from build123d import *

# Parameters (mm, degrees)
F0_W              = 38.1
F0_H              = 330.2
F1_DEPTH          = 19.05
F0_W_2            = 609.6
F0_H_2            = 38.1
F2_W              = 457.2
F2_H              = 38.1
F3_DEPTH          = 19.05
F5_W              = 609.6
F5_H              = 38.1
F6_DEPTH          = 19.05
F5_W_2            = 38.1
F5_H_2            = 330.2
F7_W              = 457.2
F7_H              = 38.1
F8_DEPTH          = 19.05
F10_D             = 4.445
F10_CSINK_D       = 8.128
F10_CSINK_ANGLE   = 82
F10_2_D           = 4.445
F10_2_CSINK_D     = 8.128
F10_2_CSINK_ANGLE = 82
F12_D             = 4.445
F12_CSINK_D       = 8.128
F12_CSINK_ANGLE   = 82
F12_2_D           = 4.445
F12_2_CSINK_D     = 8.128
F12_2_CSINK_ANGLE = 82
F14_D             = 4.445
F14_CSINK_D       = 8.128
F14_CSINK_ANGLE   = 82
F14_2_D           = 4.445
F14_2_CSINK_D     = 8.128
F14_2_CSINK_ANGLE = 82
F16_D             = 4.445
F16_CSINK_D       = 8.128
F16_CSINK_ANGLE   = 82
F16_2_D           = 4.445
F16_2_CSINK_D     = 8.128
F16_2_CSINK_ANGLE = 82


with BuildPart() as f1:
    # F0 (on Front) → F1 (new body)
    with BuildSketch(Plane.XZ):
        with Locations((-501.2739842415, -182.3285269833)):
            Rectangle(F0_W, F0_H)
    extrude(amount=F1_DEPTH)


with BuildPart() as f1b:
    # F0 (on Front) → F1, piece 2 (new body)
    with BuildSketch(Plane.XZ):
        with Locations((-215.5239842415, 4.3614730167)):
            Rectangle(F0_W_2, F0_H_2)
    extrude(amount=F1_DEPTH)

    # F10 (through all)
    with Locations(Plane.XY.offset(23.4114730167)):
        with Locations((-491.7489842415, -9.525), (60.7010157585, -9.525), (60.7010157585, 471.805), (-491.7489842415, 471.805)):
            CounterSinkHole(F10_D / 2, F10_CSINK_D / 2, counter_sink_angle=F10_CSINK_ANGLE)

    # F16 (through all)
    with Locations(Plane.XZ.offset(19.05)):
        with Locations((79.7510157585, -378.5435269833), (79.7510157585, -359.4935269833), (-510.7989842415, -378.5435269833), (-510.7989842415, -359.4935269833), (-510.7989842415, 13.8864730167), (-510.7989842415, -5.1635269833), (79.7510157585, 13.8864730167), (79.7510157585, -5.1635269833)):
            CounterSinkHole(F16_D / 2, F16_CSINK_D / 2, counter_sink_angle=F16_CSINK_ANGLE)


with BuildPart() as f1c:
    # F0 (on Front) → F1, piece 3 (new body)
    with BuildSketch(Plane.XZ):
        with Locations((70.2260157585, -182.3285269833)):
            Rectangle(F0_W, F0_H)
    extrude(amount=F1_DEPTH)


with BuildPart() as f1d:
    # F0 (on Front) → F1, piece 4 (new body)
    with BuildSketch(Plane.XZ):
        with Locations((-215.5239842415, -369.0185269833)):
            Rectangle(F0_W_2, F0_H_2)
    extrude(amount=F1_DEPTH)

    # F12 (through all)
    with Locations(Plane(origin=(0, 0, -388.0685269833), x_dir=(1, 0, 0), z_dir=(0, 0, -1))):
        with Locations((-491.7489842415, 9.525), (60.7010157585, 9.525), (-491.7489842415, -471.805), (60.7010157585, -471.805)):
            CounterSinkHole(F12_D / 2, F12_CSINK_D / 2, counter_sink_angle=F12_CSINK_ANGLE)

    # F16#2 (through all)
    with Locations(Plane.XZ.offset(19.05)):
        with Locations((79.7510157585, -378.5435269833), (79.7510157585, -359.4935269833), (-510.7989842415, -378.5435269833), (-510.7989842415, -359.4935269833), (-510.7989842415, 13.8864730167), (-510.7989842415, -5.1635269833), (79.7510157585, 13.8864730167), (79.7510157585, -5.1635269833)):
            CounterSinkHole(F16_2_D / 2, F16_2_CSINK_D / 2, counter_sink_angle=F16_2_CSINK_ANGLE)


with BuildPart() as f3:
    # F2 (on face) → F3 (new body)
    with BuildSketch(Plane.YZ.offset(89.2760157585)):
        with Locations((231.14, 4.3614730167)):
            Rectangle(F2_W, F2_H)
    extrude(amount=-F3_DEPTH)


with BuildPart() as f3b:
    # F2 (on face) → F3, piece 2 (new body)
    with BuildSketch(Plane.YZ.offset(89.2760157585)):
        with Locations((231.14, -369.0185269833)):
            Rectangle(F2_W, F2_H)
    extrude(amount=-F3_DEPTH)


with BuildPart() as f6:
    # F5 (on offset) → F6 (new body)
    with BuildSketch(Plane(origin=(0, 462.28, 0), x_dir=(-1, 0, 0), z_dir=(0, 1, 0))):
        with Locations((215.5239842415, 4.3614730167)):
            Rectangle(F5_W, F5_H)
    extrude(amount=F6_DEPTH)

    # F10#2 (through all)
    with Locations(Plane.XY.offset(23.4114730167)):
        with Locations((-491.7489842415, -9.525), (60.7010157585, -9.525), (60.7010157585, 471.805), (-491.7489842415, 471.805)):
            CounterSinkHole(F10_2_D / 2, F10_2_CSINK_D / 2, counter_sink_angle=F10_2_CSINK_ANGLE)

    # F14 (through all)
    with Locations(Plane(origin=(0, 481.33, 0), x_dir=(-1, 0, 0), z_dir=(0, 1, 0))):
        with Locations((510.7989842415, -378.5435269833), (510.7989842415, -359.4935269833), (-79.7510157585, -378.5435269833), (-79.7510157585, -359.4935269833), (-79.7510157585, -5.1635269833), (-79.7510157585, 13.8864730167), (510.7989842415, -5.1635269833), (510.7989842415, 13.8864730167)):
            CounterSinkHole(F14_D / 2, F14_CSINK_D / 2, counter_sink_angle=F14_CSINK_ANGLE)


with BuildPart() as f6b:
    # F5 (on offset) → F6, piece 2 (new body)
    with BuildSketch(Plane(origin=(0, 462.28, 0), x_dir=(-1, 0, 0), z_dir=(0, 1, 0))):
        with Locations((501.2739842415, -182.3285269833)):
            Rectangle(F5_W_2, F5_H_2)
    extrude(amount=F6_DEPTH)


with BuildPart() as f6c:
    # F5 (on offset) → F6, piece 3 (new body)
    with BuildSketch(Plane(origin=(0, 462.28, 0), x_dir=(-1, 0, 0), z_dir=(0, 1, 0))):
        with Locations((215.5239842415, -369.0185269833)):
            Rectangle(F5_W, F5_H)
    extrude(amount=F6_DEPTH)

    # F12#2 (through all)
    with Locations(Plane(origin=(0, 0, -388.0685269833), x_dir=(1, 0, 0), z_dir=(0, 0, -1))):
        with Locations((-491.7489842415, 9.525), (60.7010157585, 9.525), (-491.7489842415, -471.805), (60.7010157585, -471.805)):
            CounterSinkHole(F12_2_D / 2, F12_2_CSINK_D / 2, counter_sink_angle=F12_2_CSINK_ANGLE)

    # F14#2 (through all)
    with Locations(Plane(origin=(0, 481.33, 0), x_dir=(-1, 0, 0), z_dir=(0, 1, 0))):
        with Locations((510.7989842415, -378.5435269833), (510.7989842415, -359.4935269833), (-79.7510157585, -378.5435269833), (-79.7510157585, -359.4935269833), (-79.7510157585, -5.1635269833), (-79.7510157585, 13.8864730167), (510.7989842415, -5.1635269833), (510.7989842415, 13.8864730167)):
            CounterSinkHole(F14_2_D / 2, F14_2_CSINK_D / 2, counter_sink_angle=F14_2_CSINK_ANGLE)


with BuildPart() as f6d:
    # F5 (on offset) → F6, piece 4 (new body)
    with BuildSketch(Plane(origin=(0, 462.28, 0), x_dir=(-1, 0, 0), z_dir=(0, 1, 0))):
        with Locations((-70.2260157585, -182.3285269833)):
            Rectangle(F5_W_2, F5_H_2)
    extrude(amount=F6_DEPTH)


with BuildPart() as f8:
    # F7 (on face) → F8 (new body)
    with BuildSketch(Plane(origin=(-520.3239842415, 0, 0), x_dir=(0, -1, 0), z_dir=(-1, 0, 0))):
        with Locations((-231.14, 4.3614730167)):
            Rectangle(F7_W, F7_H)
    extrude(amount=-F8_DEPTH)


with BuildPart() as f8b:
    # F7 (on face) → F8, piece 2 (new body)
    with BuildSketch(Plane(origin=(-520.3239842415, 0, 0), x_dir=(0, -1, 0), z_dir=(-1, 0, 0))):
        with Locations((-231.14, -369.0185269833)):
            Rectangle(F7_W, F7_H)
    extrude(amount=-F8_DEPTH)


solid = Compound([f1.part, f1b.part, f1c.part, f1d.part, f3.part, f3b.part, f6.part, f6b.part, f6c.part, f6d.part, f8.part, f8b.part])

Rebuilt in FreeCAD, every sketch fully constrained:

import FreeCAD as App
import Part
import Sketcher

V = App.Vector
Q = App.Units.Quantity

doc = App.newDocument("Part")
body = doc.addObject("PartDesign::Body", "Body")

# Sketch on XZ plane
sketch1 = body.newObject("Sketcher::SketchObject", "Sketch")
sketch1.AttachmentSupport = (doc.getObject("XZ_Plane"), [""])
sketch1.MapMode = "FlatFace"
sketch1.addGeometry(Part.LineSegment(V(-520.323984, -17.228527, 0), V(-520.323984, -347.428527, 0)), False)
sketch1.addGeometry(Part.LineSegment(V(-520.323984, -347.428527, 0), V(-482.223984, -347.428527, 0)), False)
sketch1.addGeometry(Part.LineSegment(V(-482.223984, -347.428527, 0), V(-482.223984, -17.228527, 0)), False)
sketch1.addGeometry(Part.LineSegment(V(-482.223984, -17.228527, 0), V(-520.323984, -17.228527, 0)), False)
sketch1.addConstraint(Sketcher.Constraint("Coincident", 0, 2, 1, 1))
sketch1.addConstraint(Sketcher.Constraint("Coincident", 1, 2, 2, 1))
sketch1.addConstraint(Sketcher.Constraint("Coincident", 2, 2, 3, 1))
sketch1.addConstraint(Sketcher.Constraint("Coincident", 3, 2, 0, 1))
sketch1.addConstraint(Sketcher.Constraint("Vertical", 0))
sketch1.addConstraint(Sketcher.Constraint("Horizontal", 1))
sketch1.addConstraint(Sketcher.Constraint("Vertical", 2))
sketch1.addConstraint(Sketcher.Constraint("Horizontal", 3))
sketch1.addConstraint(Sketcher.Constraint("DistanceY", 0, 2, 0, 1, Q("13 in")))
sketch1.addConstraint(Sketcher.Constraint("DistanceX", 1, 1, 1, 2, Q("1.5 in")))
sketch1.addConstraint(Sketcher.Constraint("DistanceX", 0, 2, -1, 1, Q("520.323984 mm")))
sketch1.addConstraint(Sketcher.Constraint("DistanceY", 0, 2, -1, 1, Q("347.428527 mm")))
pad1 = body.newObject("PartDesign::Pad", "Pad")
pad1.Profile = sketch1
pad1.Length = Q("0.75 in")
body2 = doc.addObject("PartDesign::Body", "Body001")

# Sketch on XZ plane
sketch2 = body2.newObject("Sketcher::SketchObject", "Sketch001")
sketch2.AttachmentSupport = (doc.getObject("XZ_Plane001"), [""])
sketch2.MapMode = "FlatFace"
sketch2.addGeometry(Part.LineSegment(V(-520.323984, 23.411473, 0), V(-520.323984, -14.688527, 0)), False)
sketch2.addGeometry(Part.LineSegment(V(-520.323984, -14.688527, 0), V(89.276016, -14.688527, 0)), False)
sketch2.addGeometry(Part.LineSegment(V(89.276016, -14.688527, 0), V(89.276016, 23.411473, 0)), False)
sketch2.addGeometry(Part.LineSegment(V(89.276016, 23.411473, 0), V(-520.323984, 23.411473, 0)), False)
sketch2.addConstraint(Sketcher.Constraint("Coincident", 0, 2, 1, 1))
sketch2.addConstraint(Sketcher.Constraint("Coincident", 1, 2, 2, 1))
sketch2.addConstraint(Sketcher.Constraint("Coincident", 2, 2, 3, 1))
sketch2.addConstraint(Sketcher.Constraint("Coincident", 3, 2, 0, 1))
sketch2.addConstraint(Sketcher.Constraint("Vertical", 0))
sketch2.addConstraint(Sketcher.Constraint("Horizontal", 1))
sketch2.addConstraint(Sketcher.Constraint("Vertical", 2))
sketch2.addConstraint(Sketcher.Constraint("Horizontal", 3))
sketch2.addConstraint(Sketcher.Constraint("DistanceX", 1, 1, 1, 2, Q("24 in")))
sketch2.addConstraint(Sketcher.Constraint("DistanceY", 0, 2, 0, 1, Q("1.5 in")))
sketch2.addConstraint(Sketcher.Constraint("DistanceX", 0, 2, -1, 1, Q("520.323984 mm")))
sketch2.addConstraint(Sketcher.Constraint("DistanceY", 0, 2, -1, 1, Q("14.688527 mm")))
pad2 = body2.newObject("PartDesign::Pad", "Pad001")
pad2.Profile = sketch2
pad2.Length = Q("0.75 in")

# Sketch on XY plane
sketch3 = body2.newObject("Sketcher::SketchObject", "Sketch002")
sketch3.AttachmentSupport = (doc.getObject("XY_Plane001"), [""])
sketch3.MapMode = "FlatFace"
sketch3.AttachmentOffset = App.Placement(V(0, 0, 23.411473), App.Rotation())
sketch3.addGeometry(Part.Circle(V(-491.748984, -9.525, 0), V(0, 0, 1), 2.2225), False)
sketch3.addGeometry(Part.Circle(V(60.701016, -9.525, 0), V(0, 0, 1), 2.2225), False)
sketch3.addGeometry(Part.Circle(V(60.701016, 471.805, 0), V(0, 0, 1), 2.2225), False)
sketch3.addGeometry(Part.Circle(V(-491.748984, 471.805, 0), V(0, 0, 1), 2.2225), False)
sketch3.addConstraint(Sketcher.Constraint("Equal", 0, 1))
sketch3.addConstraint(Sketcher.Constraint("Equal", 1, 2))
sketch3.addConstraint(Sketcher.Constraint("Equal", 2, 3))
sketch3.addConstraint(Sketcher.Constraint("Horizontal", 0, 3, 1, 3))
sketch3.addConstraint(Sketcher.Constraint("Horizontal", 2, 3, 3, 3))
sketch3.addConstraint(Sketcher.Constraint("Vertical", 1, 3, 2, 3))
sketch3.addConstraint(Sketcher.Constraint("Vertical", 0, 3, 3, 3))
sketch3.addConstraint(Sketcher.Constraint("Diameter", 0, Q("0.175 in")))
sketch3.addConstraint(Sketcher.Constraint("DistanceX", 0, 3, 1, 3, Q("21.75 in")))
sketch3.addConstraint(Sketcher.Constraint("DistanceY", 1, 3, 2, 3, Q("18.95 in")))
sketch3.addConstraint(Sketcher.Constraint("DistanceY", 0, 3, -1, 1, Q("0.375 in")))
sketch3.addConstraint(Sketcher.Constraint("DistanceX", 0, 3, -1, 1, Q("491.748984 mm")))
doc.recompute()
hole = body2.newObject("PartDesign::Hole", "Hole")
hole.Profile = sketch3
hole.ThreadType = "None"
hole.Diameter = Q("0.175 in")
hole.DepthType = "ThroughAll"
hole.HoleCutType = "Countersink"
hole.HoleCutDiameter = Q("0.32 in")
hole.HoleCutCountersinkAngle = 82

# Sketch on XZ plane
sketch4 = body2.newObject("Sketcher::SketchObject", "Sketch003")
sketch4.AttachmentSupport = (doc.getObject("XZ_Plane001"), [""])
sketch4.MapMode = "FlatFace"
sketch4.AttachmentOffset = App.Placement(V(0, 0, 0.75 * 25.4), App.Rotation())
sketch4.addGeometry(Part.Circle(V(79.751016, -378.543527, 0), V(0, 0, 1), 2.2225), False)
sketch4.addGeometry(Part.Circle(V(79.751016, -359.493527, 0), V(0, 0, 1), 2.2225), False)
sketch4.addGeometry(Part.Circle(V(-510.798984, -378.543527, 0), V(0, 0, 1), 2.2225), False)
sketch4.addGeometry(Part.Circle(V(-510.798984, -359.493527, 0), V(0, 0, 1), 2.2225), False)
sketch4.addGeometry(Part.Circle(V(-510.798984, 13.886473, 0), V(0, 0, 1), 2.2225), False)
sketch4.addGeometry(Part.Circle(V(-510.798984, -5.163527, 0), V(0, 0, 1), 2.2225), False)
sketch4.addGeometry(Part.Circle(V(79.751016, 13.886473, 0), V(0, 0, 1), 2.2225), False)
sketch4.addGeometry(Part.Circle(V(79.751016, -5.163527, 0), V(0, 0, 1), 2.2225), False)
sketch4.addConstraint(Sketcher.Constraint("Equal", 0, 1))
sketch4.addConstraint(Sketcher.Constraint("Equal", 1, 2))
sketch4.addConstraint(Sketcher.Constraint("Equal", 2, 3))
sketch4.addConstraint(Sketcher.Constraint("Equal", 3, 4))
sketch4.addConstraint(Sketcher.Constraint("Equal", 4, 5))
sketch4.addConstraint(Sketcher.Constraint("Equal", 5, 6))
sketch4.addConstraint(Sketcher.Constraint("Equal", 6, 7))
sketch4.addConstraint(Sketcher.Constraint("Horizontal", 0, 3, 2, 3))
sketch4.addConstraint(Sketcher.Constraint("Horizontal", 1, 3, 3, 3))
sketch4.addConstraint(Sketcher.Constraint("Horizontal", 4, 3, 6, 3))
sketch4.addConstraint(Sketcher.Constraint("Horizontal", 5, 3, 7, 3))
sketch4.addConstraint(Sketcher.Constraint("Vertical", 0, 3, 1, 3))
sketch4.addConstraint(Sketcher.Constraint("Vertical", 2, 3, 3, 3))
sketch4.addConstraint(Sketcher.Constraint("Vertical", 3, 3, 4, 3))
sketch4.addConstraint(Sketcher.Constraint("Vertical", 4, 3, 5, 3))
sketch4.addConstraint(Sketcher.Constraint("Vertical", 1, 3, 6, 3))
sketch4.addConstraint(Sketcher.Constraint("Vertical", 6, 3, 7, 3))
sketch4.addConstraint(Sketcher.Constraint("Diameter", 0, Q("0.175 in")))
sketch4.addConstraint(Sketcher.Constraint("DistanceY", 3, 3, 4, 3, Q("14.7 in")))
sketch4.addConstraint(Sketcher.Constraint("DistanceY", 2, 3, 5, 3, Q("14.7 in")))
sketch4.addConstraint(Sketcher.Constraint("DistanceY", 0, 3, 1, 3, Q("0.75 in")))
sketch4.addConstraint(Sketcher.Constraint("DistanceX", 2, 3, 0, 3, Q("23.25 in")))
sketch4.addConstraint(Sketcher.Constraint("DistanceX", -1, 1, 0, 3, Q("79.751016 mm")))
sketch4.addConstraint(Sketcher.Constraint("DistanceY", 0, 3, -1, 1, Q("378.543527 mm")))
doc.recompute()
hole2 = body2.newObject("PartDesign::Hole", "Hole001")
hole2.Profile = sketch4
hole2.ThreadType = "None"
hole2.Diameter = Q("0.175 in")
hole2.DepthType = "ThroughAll"
hole2.HoleCutType = "Countersink"
hole2.HoleCutDiameter = Q("0.32 in")
hole2.HoleCutCountersinkAngle = 82
body3 = doc.addObject("PartDesign::Body", "Body002")

# Sketch on XZ plane
sketch5 = body3.newObject("Sketcher::SketchObject", "Sketch004")
sketch5.AttachmentSupport = (doc.getObject("XZ_Plane002"), [""])
sketch5.MapMode = "FlatFace"
sketch5.addGeometry(Part.LineSegment(V(51.176016, -17.228527, 0), V(51.176016, -347.428527, 0)), False)
sketch5.addGeometry(Part.LineSegment(V(51.176016, -347.428527, 0), V(89.276016, -347.428527, 0)), False)
sketch5.addGeometry(Part.LineSegment(V(89.276016, -347.428527, 0), V(89.276016, -17.228527, 0)), False)
sketch5.addGeometry(Part.LineSegment(V(89.276016, -17.228527, 0), V(51.176016, -17.228527, 0)), False)
sketch5.addConstraint(Sketcher.Constraint("Coincident", 0, 2, 1, 1))
sketch5.addConstraint(Sketcher.Constraint("Coincident", 1, 2, 2, 1))
sketch5.addConstraint(Sketcher.Constraint("Coincident", 2, 2, 3, 1))
sketch5.addConstraint(Sketcher.Constraint("Coincident", 3, 2, 0, 1))
sketch5.addConstraint(Sketcher.Constraint("Vertical", 0))
sketch5.addConstraint(Sketcher.Constraint("Horizontal", 1))
sketch5.addConstraint(Sketcher.Constraint("Vertical", 2))
sketch5.addConstraint(Sketcher.Constraint("Horizontal", 3))
sketch5.addConstraint(Sketcher.Constraint("DistanceY", 0, 2, 0, 1, Q("13 in")))
sketch5.addConstraint(Sketcher.Constraint("DistanceX", 1, 1, 1, 2, Q("1.5 in")))
sketch5.addConstraint(Sketcher.Constraint("DistanceX", -1, 1, 0, 2, Q("51.176016 mm")))
sketch5.addConstraint(Sketcher.Constraint("DistanceY", 0, 2, -1, 1, Q("347.428527 mm")))
pad3 = body3.newObject("PartDesign::Pad", "Pad002")
pad3.Profile = sketch5
pad3.Length = Q("0.75 in")
body4 = doc.addObject("PartDesign::Body", "Body003")

# Sketch on XZ plane
sketch6 = body4.newObject("Sketcher::SketchObject", "Sketch005")
sketch6.AttachmentSupport = (doc.getObject("XZ_Plane003"), [""])
sketch6.MapMode = "FlatFace"
sketch6.addGeometry(Part.LineSegment(V(-520.323984, -349.968527, 0), V(-520.323984, -388.068527, 0)), False)
sketch6.addGeometry(Part.LineSegment(V(-520.323984, -388.068527, 0), V(89.276016, -388.068527, 0)), False)
sketch6.addGeometry(Part.LineSegment(V(89.276016, -388.068527, 0), V(89.276016, -349.968527, 0)), False)
sketch6.addGeometry(Part.LineSegment(V(89.276016, -349.968527, 0), V(-520.323984, -349.968527, 0)), False)
sketch6.addConstraint(Sketcher.Constraint("Coincident", 0, 2, 1, 1))
sketch6.addConstraint(Sketcher.Constraint("Coincident", 1, 2, 2, 1))
sketch6.addConstraint(Sketcher.Constraint("Coincident", 2, 2, 3, 1))
sketch6.addConstraint(Sketcher.Constraint("Coincident", 3, 2, 0, 1))
sketch6.addConstraint(Sketcher.Constraint("Vertical", 0))
sketch6.addConstraint(Sketcher.Constraint("Horizontal", 1))
sketch6.addConstraint(Sketcher.Constraint("Vertical", 2))
sketch6.addConstraint(Sketcher.Constraint("Horizontal", 3))
sketch6.addConstraint(Sketcher.Constraint("DistanceX", 1, 1, 1, 2, Q("24 in")))
sketch6.addConstraint(Sketcher.Constraint("DistanceY", 0, 2, 0, 1, Q("1.5 in")))
sketch6.addConstraint(Sketcher.Constraint("DistanceX", 0, 2, -1, 1, Q("520.323984 mm")))
sketch6.addConstraint(Sketcher.Constraint("DistanceY", 0, 2, -1, 1, Q("388.068527 mm")))
pad4 = body4.newObject("PartDesign::Pad", "Pad003")
pad4.Profile = sketch6
pad4.Length = Q("0.75 in")

# Sketch on XY plane
sketch7 = body4.newObject("Sketcher::SketchObject", "Sketch006")
sketch7.AttachmentSupport = (doc.getObject("XY_Plane003"), [""])
sketch7.MapMode = "FlatFace"
sketch7.AttachmentOffset = App.Placement(V(0, 0, -388.068527), App.Rotation())
sketch7.addGeometry(Part.Circle(V(-491.748984, -9.525, 0), V(0, 0, 1), 2.2225), False)
sketch7.addGeometry(Part.Circle(V(60.701016, -9.525, 0), V(0, 0, 1), 2.2225), False)
sketch7.addGeometry(Part.Circle(V(-491.748984, 471.805, 0), V(0, 0, 1), 2.2225), False)
sketch7.addGeometry(Part.Circle(V(60.701016, 471.805, 0), V(0, 0, 1), 2.2225), False)
sketch7.addConstraint(Sketcher.Constraint("Equal", 0, 1))
sketch7.addConstraint(Sketcher.Constraint("Equal", 1, 2))
sketch7.addConstraint(Sketcher.Constraint("Equal", 2, 3))
sketch7.addConstraint(Sketcher.Constraint("Horizontal", 0, 3, 1, 3))
sketch7.addConstraint(Sketcher.Constraint("Horizontal", 2, 3, 3, 3))
sketch7.addConstraint(Sketcher.Constraint("Vertical", 0, 3, 2, 3))
sketch7.addConstraint(Sketcher.Constraint("Vertical", 1, 3, 3, 3))
sketch7.addConstraint(Sketcher.Constraint("Diameter", 0, Q("0.175 in")))
sketch7.addConstraint(Sketcher.Constraint("DistanceX", 0, 3, 1, 3, Q("21.75 in")))
sketch7.addConstraint(Sketcher.Constraint("DistanceY", 0, 3, 2, 3, Q("18.95 in")))
sketch7.addConstraint(Sketcher.Constraint("DistanceY", 0, 3, -1, 1, Q("0.375 in")))
sketch7.addConstraint(Sketcher.Constraint("DistanceX", 0, 3, -1, 1, Q("491.748984 mm")))
doc.recompute()
hole3 = body4.newObject("PartDesign::Hole", "Hole002")
hole3.Profile = sketch7
hole3.ThreadType = "None"
hole3.Diameter = Q("0.175 in")
hole3.DepthType = "ThroughAll"
hole3.HoleCutType = "Countersink"
hole3.HoleCutDiameter = Q("0.32 in")
hole3.HoleCutCountersinkAngle = 82
hole3.Reversed = True

# Sketch on XZ plane
sketch8 = body4.newObject("Sketcher::SketchObject", "Sketch007")
sketch8.AttachmentSupport = (doc.getObject("XZ_Plane003"), [""])
sketch8.MapMode = "FlatFace"
sketch8.AttachmentOffset = App.Placement(V(0, 0, 0.75 * 25.4), App.Rotation())
sketch8.addGeometry(Part.Circle(V(79.751016, -378.543527, 0), V(0, 0, 1), 2.2225), False)
sketch8.addGeometry(Part.Circle(V(79.751016, -359.493527, 0), V(0, 0, 1), 2.2225), False)
sketch8.addGeometry(Part.Circle(V(-510.798984, -378.543527, 0), V(0, 0, 1), 2.2225), False)
sketch8.addGeometry(Part.Circle(V(-510.798984, -359.493527, 0), V(0, 0, 1), 2.2225), False)
sketch8.addGeometry(Part.Circle(V(-510.798984, 13.886473, 0), V(0, 0, 1), 2.2225), False)
sketch8.addGeometry(Part.Circle(V(-510.798984, -5.163527, 0), V(0, 0, 1), 2.2225), False)
sketch8.addGeometry(Part.Circle(V(79.751016, 13.886473, 0), V(0, 0, 1), 2.2225), False)
sketch8.addGeometry(Part.Circle(V(79.751016, -5.163527, 0), V(0, 0, 1), 2.2225), False)
sketch8.addConstraint(Sketcher.Constraint("Equal", 0, 1))
sketch8.addConstraint(Sketcher.Constraint("Equal", 1, 2))
sketch8.addConstraint(Sketcher.Constraint("Equal", 2, 3))
sketch8.addConstraint(Sketcher.Constraint("Equal", 3, 4))
sketch8.addConstraint(Sketcher.Constraint("Equal", 4, 5))
sketch8.addConstraint(Sketcher.Constraint("Equal", 5, 6))
sketch8.addConstraint(Sketcher.Constraint("Equal", 6, 7))
sketch8.addConstraint(Sketcher.Constraint("Horizontal", 0, 3, 2, 3))
sketch8.addConstraint(Sketcher.Constraint("Horizontal", 1, 3, 3, 3))
sketch8.addConstraint(Sketcher.Constraint("Horizontal", 4, 3, 6, 3))
sketch8.addConstraint(Sketcher.Constraint("Horizontal", 5, 3, 7, 3))
sketch8.addConstraint(Sketcher.Constraint("Vertical", 0, 3, 1, 3))
sketch8.addConstraint(Sketcher.Constraint("Vertical", 2, 3, 3, 3))
sketch8.addConstraint(Sketcher.Constraint("Vertical", 3, 3, 4, 3))
sketch8.addConstraint(Sketcher.Constraint("Vertical", 4, 3, 5, 3))
sketch8.addConstraint(Sketcher.Constraint("Vertical", 1, 3, 6, 3))
sketch8.addConstraint(Sketcher.Constraint("Vertical", 6, 3, 7, 3))
sketch8.addConstraint(Sketcher.Constraint("Diameter", 0, Q("0.175 in")))
sketch8.addConstraint(Sketcher.Constraint("DistanceY", 3, 3, 4, 3, Q("14.7 in")))
sketch8.addConstraint(Sketcher.Constraint("DistanceY", 2, 3, 5, 3, Q("14.7 in")))
sketch8.addConstraint(Sketcher.Constraint("DistanceY", 0, 3, 1, 3, Q("0.75 in")))
sketch8.addConstraint(Sketcher.Constraint("DistanceX", 2, 3, 0, 3, Q("23.25 in")))
sketch8.addConstraint(Sketcher.Constraint("DistanceX", -1, 1, 0, 3, Q("79.751016 mm")))
sketch8.addConstraint(Sketcher.Constraint("DistanceY", 0, 3, -1, 1, Q("378.543527 mm")))
doc.recompute()
hole4 = body4.newObject("PartDesign::Hole", "Hole003")
hole4.Profile = sketch8
hole4.ThreadType = "None"
hole4.Diameter = Q("0.175 in")
hole4.DepthType = "ThroughAll"
hole4.HoleCutType = "Countersink"
hole4.HoleCutDiameter = Q("0.32 in")
hole4.HoleCutCountersinkAngle = 82
body5 = doc.addObject("PartDesign::Body", "Body004")

# Sketch on YZ plane
sketch9 = body5.newObject("Sketcher::SketchObject", "Sketch008")
sketch9.AttachmentSupport = (doc.getObject("YZ_Plane004"), [""])
sketch9.MapMode = "FlatFace"
sketch9.AttachmentOffset = App.Placement(V(0, 0, 89.276016), App.Rotation())
sketch9.addGeometry(Part.LineSegment(V(2.54, 23.411473, 0), V(2.54, -14.688527, 0)), False)
sketch9.addGeometry(Part.LineSegment(V(2.54, -14.688527, 0), V(459.74, -14.688527, 0)), False)
sketch9.addGeometry(Part.LineSegment(V(459.74, -14.688527, 0), V(459.74, 23.411473, 0)), False)
sketch9.addGeometry(Part.LineSegment(V(459.74, 23.411473, 0), V(2.54, 23.411473, 0)), False)
sketch9.addConstraint(Sketcher.Constraint("Coincident", 0, 2, 1, 1))
sketch9.addConstraint(Sketcher.Constraint("Coincident", 1, 2, 2, 1))
sketch9.addConstraint(Sketcher.Constraint("Coincident", 2, 2, 3, 1))
sketch9.addConstraint(Sketcher.Constraint("Coincident", 3, 2, 0, 1))
sketch9.addConstraint(Sketcher.Constraint("Vertical", 0))
sketch9.addConstraint(Sketcher.Constraint("Horizontal", 1))
sketch9.addConstraint(Sketcher.Constraint("Vertical", 2))
sketch9.addConstraint(Sketcher.Constraint("Horizontal", 3))
sketch9.addConstraint(Sketcher.Constraint("DistanceX", 1, 1, 1, 2, Q("18 in")))
sketch9.addConstraint(Sketcher.Constraint("DistanceY", 0, 2, 0, 1, Q("1.5 in")))
sketch9.addConstraint(Sketcher.Constraint("DistanceX", -1, 1, 0, 2, Q("0.1 in")))
sketch9.addConstraint(Sketcher.Constraint("DistanceY", 0, 2, -1, 1, Q("14.688527 mm")))
pad5 = body5.newObject("PartDesign::Pad", "Pad004")
pad5.Profile = sketch9
pad5.Length = Q("0.75 in")
pad5.Reversed = True
body6 = doc.addObject("PartDesign::Body", "Body005")

# Sketch on YZ plane
sketch10 = body6.newObject("Sketcher::SketchObject", "Sketch009")
sketch10.AttachmentSupport = (doc.getObject("YZ_Plane005"), [""])
sketch10.MapMode = "FlatFace"
sketch10.AttachmentOffset = App.Placement(V(0, 0, 89.276016), App.Rotation())
sketch10.addGeometry(Part.LineSegment(V(2.54, -349.968527, 0), V(2.54, -388.068527, 0)), False)
sketch10.addGeometry(Part.LineSegment(V(2.54, -388.068527, 0), V(459.74, -388.068527, 0)), False)
sketch10.addGeometry(Part.LineSegment(V(459.74, -388.068527, 0), V(459.74, -349.968527, 0)), False)
sketch10.addGeometry(Part.LineSegment(V(459.74, -349.968527, 0), V(2.54, -349.968527, 0)), False)
sketch10.addConstraint(Sketcher.Constraint("Coincident", 0, 2, 1, 1))
sketch10.addConstraint(Sketcher.Constraint("Coincident", 1, 2, 2, 1))
sketch10.addConstraint(Sketcher.Constraint("Coincident", 2, 2, 3, 1))
sketch10.addConstraint(Sketcher.Constraint("Coincident", 3, 2, 0, 1))
sketch10.addConstraint(Sketcher.Constraint("Vertical", 0))
sketch10.addConstraint(Sketcher.Constraint("Horizontal", 1))
sketch10.addConstraint(Sketcher.Constraint("Vertical", 2))
sketch10.addConstraint(Sketcher.Constraint("Horizontal", 3))
sketch10.addConstraint(Sketcher.Constraint("DistanceX", 1, 1, 1, 2, Q("18 in")))
sketch10.addConstraint(Sketcher.Constraint("DistanceY", 0, 2, 0, 1, Q("1.5 in")))
sketch10.addConstraint(Sketcher.Constraint("DistanceX", -1, 1, 0, 2, Q("0.1 in")))
sketch10.addConstraint(Sketcher.Constraint("DistanceY", 0, 2, -1, 1, Q("388.068527 mm")))
pad6 = body6.newObject("PartDesign::Pad", "Pad005")
pad6.Profile = sketch10
pad6.Length = Q("0.75 in")
pad6.Reversed = True
body7 = doc.addObject("PartDesign::Body", "Body006")

# Sketch on XZ plane
sketch11 = body7.newObject("Sketcher::SketchObject", "Sketch010")
sketch11.AttachmentSupport = (doc.getObject("XZ_Plane006"), [""])
sketch11.MapMode = "FlatFace"
sketch11.AttachmentOffset = App.Placement(V(0, 0, -18.2 * 25.4), App.Rotation())
sketch11.addGeometry(Part.LineSegment(V(89.276016, 23.411473, 0), V(89.276016, -14.688527, 0)), False)
sketch11.addGeometry(Part.LineSegment(V(89.276016, -14.688527, 0), V(-520.323984, -14.688527, 0)), False)
sketch11.addGeometry(Part.LineSegment(V(-520.323984, -14.688527, 0), V(-520.323984, 23.411473, 0)), False)
sketch11.addGeometry(Part.LineSegment(V(-520.323984, 23.411473, 0), V(89.276016, 23.411473, 0)), False)
sketch11.addConstraint(Sketcher.Constraint("Coincident", 0, 2, 1, 1))
sketch11.addConstraint(Sketcher.Constraint("Coincident", 1, 2, 2, 1))
sketch11.addConstraint(Sketcher.Constraint("Coincident", 2, 2, 3, 1))
sketch11.addConstraint(Sketcher.Constraint("Coincident", 3, 2, 0, 1))
sketch11.addConstraint(Sketcher.Constraint("Vertical", 0))
sketch11.addConstraint(Sketcher.Constraint("Horizontal", 1))
sketch11.addConstraint(Sketcher.Constraint("Vertical", 2))
sketch11.addConstraint(Sketcher.Constraint("Horizontal", 3))
sketch11.addConstraint(Sketcher.Constraint("DistanceX", 1, 2, 1, 1, Q("24 in")))
sketch11.addConstraint(Sketcher.Constraint("DistanceY", 0, 2, 0, 1, Q("1.5 in")))
sketch11.addConstraint(Sketcher.Constraint("DistanceX", -1, 1, 0, 2, Q("89.276016 mm")))
sketch11.addConstraint(Sketcher.Constraint("DistanceY", 0, 2, -1, 1, Q("14.688527 mm")))
pad7 = body7.newObject("PartDesign::Pad", "Pad006")
pad7.Profile = sketch11
pad7.Length = Q("0.75 in")
pad7.Reversed = True

# Sketch on XY plane
sketch12 = body7.newObject("Sketcher::SketchObject", "Sketch011")
sketch12.AttachmentSupport = (doc.getObject("XY_Plane006"), [""])
sketch12.MapMode = "FlatFace"
sketch12.AttachmentOffset = App.Placement(V(0, 0, 23.411473), App.Rotation())
sketch12.addGeometry(Part.Circle(V(-491.748984, -9.525, 0), V(0, 0, 1), 2.2225), False)
sketch12.addGeometry(Part.Circle(V(60.701016, -9.525, 0), V(0, 0, 1), 2.2225), False)
sketch12.addGeometry(Part.Circle(V(60.701016, 471.805, 0), V(0, 0, 1), 2.2225), False)
sketch12.addGeometry(Part.Circle(V(-491.748984, 471.805, 0), V(0, 0, 1), 2.2225), False)
sketch12.addConstraint(Sketcher.Constraint("Equal", 0, 1))
sketch12.addConstraint(Sketcher.Constraint("Equal", 1, 2))
sketch12.addConstraint(Sketcher.Constraint("Equal", 2, 3))
sketch12.addConstraint(Sketcher.Constraint("Horizontal", 0, 3, 1, 3))
sketch12.addConstraint(Sketcher.Constraint("Horizontal", 2, 3, 3, 3))
sketch12.addConstraint(Sketcher.Constraint("Vertical", 1, 3, 2, 3))
sketch12.addConstraint(Sketcher.Constraint("Vertical", 0, 3, 3, 3))
sketch12.addConstraint(Sketcher.Constraint("Diameter", 0, Q("0.175 in")))
sketch12.addConstraint(Sketcher.Constraint("DistanceX", 0, 3, 1, 3, Q("21.75 in")))
sketch12.addConstraint(Sketcher.Constraint("DistanceY", 1, 3, 2, 3, Q("18.95 in")))
sketch12.addConstraint(Sketcher.Constraint("DistanceY", 0, 3, -1, 1, Q("0.375 in")))
sketch12.addConstraint(Sketcher.Constraint("DistanceX", 0, 3, -1, 1, Q("491.748984 mm")))
doc.recompute()
hole5 = body7.newObject("PartDesign::Hole", "Hole004")
hole5.Profile = sketch12
hole5.ThreadType = "None"
hole5.Diameter = Q("0.175 in")
hole5.DepthType = "ThroughAll"
hole5.HoleCutType = "Countersink"
hole5.HoleCutDiameter = Q("0.32 in")
hole5.HoleCutCountersinkAngle = 82

# Sketch on XZ plane
sketch13 = body7.newObject("Sketcher::SketchObject", "Sketch012")
sketch13.AttachmentSupport = (doc.getObject("XZ_Plane006"), [""])
sketch13.MapMode = "FlatFace"
sketch13.AttachmentOffset = App.Placement(V(0, 0, -18.95 * 25.4), App.Rotation())
sketch13.addGeometry(Part.Circle(V(-510.798984, -378.543527, 0), V(0, 0, 1), 2.2225), False)
sketch13.addGeometry(Part.Circle(V(-510.798984, -359.493527, 0), V(0, 0, 1), 2.2225), False)
sketch13.addGeometry(Part.Circle(V(79.751016, -378.543527, 0), V(0, 0, 1), 2.2225), False)
sketch13.addGeometry(Part.Circle(V(79.751016, -359.493527, 0), V(0, 0, 1), 2.2225), False)
sketch13.addGeometry(Part.Circle(V(79.751016, -5.163527, 0), V(0, 0, 1), 2.2225), False)
sketch13.addGeometry(Part.Circle(V(79.751016, 13.886473, 0), V(0, 0, 1), 2.2225), False)
sketch13.addGeometry(Part.Circle(V(-510.798984, -5.163527, 0), V(0, 0, 1), 2.2225), False)
sketch13.addGeometry(Part.Circle(V(-510.798984, 13.886473, 0), V(0, 0, 1), 2.2225), False)
sketch13.addConstraint(Sketcher.Constraint("Equal", 0, 1))
sketch13.addConstraint(Sketcher.Constraint("Equal", 1, 2))
sketch13.addConstraint(Sketcher.Constraint("Equal", 2, 3))
sketch13.addConstraint(Sketcher.Constraint("Equal", 3, 4))
sketch13.addConstraint(Sketcher.Constraint("Equal", 4, 5))
sketch13.addConstraint(Sketcher.Constraint("Equal", 5, 6))
sketch13.addConstraint(Sketcher.Constraint("Equal", 6, 7))
sketch13.addConstraint(Sketcher.Constraint("Horizontal", 0, 3, 2, 3))
sketch13.addConstraint(Sketcher.Constraint("Horizontal", 1, 3, 3, 3))
sketch13.addConstraint(Sketcher.Constraint("Horizontal", 4, 3, 6, 3))
sketch13.addConstraint(Sketcher.Constraint("Horizontal", 5, 3, 7, 3))
sketch13.addConstraint(Sketcher.Constraint("Vertical", 0, 3, 1, 3))
sketch13.addConstraint(Sketcher.Constraint("Vertical", 2, 3, 3, 3))
sketch13.addConstraint(Sketcher.Constraint("Vertical", 3, 3, 4, 3))
sketch13.addConstraint(Sketcher.Constraint("Vertical", 4, 3, 5, 3))
sketch13.addConstraint(Sketcher.Constraint("Vertical", 1, 3, 6, 3))
sketch13.addConstraint(Sketcher.Constraint("Vertical", 6, 3, 7, 3))
sketch13.addConstraint(Sketcher.Constraint("Diameter", 0, Q("0.175 in")))
sketch13.addConstraint(Sketcher.Constraint("DistanceY", 2, 3, 4, 3, Q("14.7 in")))
sketch13.addConstraint(Sketcher.Constraint("DistanceY", 3, 3, 5, 3, Q("14.7 in")))
sketch13.addConstraint(Sketcher.Constraint("DistanceY", 0, 3, 1, 3, Q("0.75 in")))
sketch13.addConstraint(Sketcher.Constraint("DistanceX", 0, 3, 2, 3, Q("23.25 in")))
sketch13.addConstraint(Sketcher.Constraint("DistanceX", 0, 3, -1, 1, Q("510.798984 mm")))
sketch13.addConstraint(Sketcher.Constraint("DistanceY", 0, 3, -1, 1, Q("378.543527 mm")))
doc.recompute()
hole6 = body7.newObject("PartDesign::Hole", "Hole005")
hole6.Profile = sketch13
hole6.ThreadType = "None"
hole6.Diameter = Q("0.175 in")
hole6.DepthType = "ThroughAll"
hole6.HoleCutType = "Countersink"
hole6.HoleCutDiameter = Q("0.32 in")
hole6.HoleCutCountersinkAngle = 82
hole6.Reversed = True
body8 = doc.addObject("PartDesign::Body", "Body007")

# Sketch on XZ plane
sketch14 = body8.newObject("Sketcher::SketchObject", "Sketch013")
sketch14.AttachmentSupport = (doc.getObject("XZ_Plane007"), [""])
sketch14.MapMode = "FlatFace"
sketch14.AttachmentOffset = App.Placement(V(0, 0, -18.2 * 25.4), App.Rotation())
sketch14.addGeometry(Part.LineSegment(V(-482.223984, -17.228527, 0), V(-482.223984, -347.428527, 0)), False)
sketch14.addGeometry(Part.LineSegment(V(-482.223984, -347.428527, 0), V(-520.323984, -347.428527, 0)), False)
sketch14.addGeometry(Part.LineSegment(V(-520.323984, -347.428527, 0), V(-520.323984, -17.228527, 0)), False)
sketch14.addGeometry(Part.LineSegment(V(-520.323984, -17.228527, 0), V(-482.223984, -17.228527, 0)), False)
sketch14.addConstraint(Sketcher.Constraint("Coincident", 0, 2, 1, 1))
sketch14.addConstraint(Sketcher.Constraint("Coincident", 1, 2, 2, 1))
sketch14.addConstraint(Sketcher.Constraint("Coincident", 2, 2, 3, 1))
sketch14.addConstraint(Sketcher.Constraint("Coincident", 3, 2, 0, 1))
sketch14.addConstraint(Sketcher.Constraint("Vertical", 0))
sketch14.addConstraint(Sketcher.Constraint("Horizontal", 1))
sketch14.addConstraint(Sketcher.Constraint("Vertical", 2))
sketch14.addConstraint(Sketcher.Constraint("Horizontal", 3))
sketch14.addConstraint(Sketcher.Constraint("DistanceY", 0, 2, 0, 1, Q("13 in")))
sketch14.addConstraint(Sketcher.Constraint("DistanceX", 1, 2, 1, 1, Q("1.5 in")))
sketch14.addConstraint(Sketcher.Constraint("DistanceX", 0, 2, -1, 1, Q("482.223984 mm")))
sketch14.addConstraint(Sketcher.Constraint("DistanceY", 0, 2, -1, 1, Q("347.428527 mm")))
pad8 = body8.newObject("PartDesign::Pad", "Pad007")
pad8.Profile = sketch14
pad8.Length = Q("0.75 in")
pad8.Reversed = True
body9 = doc.addObject("PartDesign::Body", "Body008")

# Sketch on XZ plane
sketch15 = body9.newObject("Sketcher::SketchObject", "Sketch014")
sketch15.AttachmentSupport = (doc.getObject("XZ_Plane008"), [""])
sketch15.MapMode = "FlatFace"
sketch15.AttachmentOffset = App.Placement(V(0, 0, -18.2 * 25.4), App.Rotation())
sketch15.addGeometry(Part.LineSegment(V(89.276016, -349.968527, 0), V(89.276016, -388.068527, 0)), False)
sketch15.addGeometry(Part.LineSegment(V(89.276016, -388.068527, 0), V(-520.323984, -388.068527, 0)), False)
sketch15.addGeometry(Part.LineSegment(V(-520.323984, -388.068527, 0), V(-520.323984, -349.968527, 0)), False)
sketch15.addGeometry(Part.LineSegment(V(-520.323984, -349.968527, 0), V(89.276016, -349.968527, 0)), False)
sketch15.addConstraint(Sketcher.Constraint("Coincident", 0, 2, 1, 1))
sketch15.addConstraint(Sketcher.Constraint("Coincident", 1, 2, 2, 1))
sketch15.addConstraint(Sketcher.Constraint("Coincident", 2, 2, 3, 1))
sketch15.addConstraint(Sketcher.Constraint("Coincident", 3, 2, 0, 1))
sketch15.addConstraint(Sketcher.Constraint("Vertical", 0))
sketch15.addConstraint(Sketcher.Constraint("Horizontal", 1))
sketch15.addConstraint(Sketcher.Constraint("Vertical", 2))
sketch15.addConstraint(Sketcher.Constraint("Horizontal", 3))
sketch15.addConstraint(Sketcher.Constraint("DistanceX", 1, 2, 1, 1, Q("24 in")))
sketch15.addConstraint(Sketcher.Constraint("DistanceY", 0, 2, 0, 1, Q("1.5 in")))
sketch15.addConstraint(Sketcher.Constraint("DistanceX", -1, 1, 0, 2, Q("89.276016 mm")))
sketch15.addConstraint(Sketcher.Constraint("DistanceY", 0, 2, -1, 1, Q("388.068527 mm")))
pad9 = body9.newObject("PartDesign::Pad", "Pad008")
pad9.Profile = sketch15
pad9.Length = Q("0.75 in")
pad9.Reversed = True

# Sketch on XY plane
sketch16 = body9.newObject("Sketcher::SketchObject", "Sketch015")
sketch16.AttachmentSupport = (doc.getObject("XY_Plane008"), [""])
sketch16.MapMode = "FlatFace"
sketch16.AttachmentOffset = App.Placement(V(0, 0, -388.068527), App.Rotation())
sketch16.addGeometry(Part.Circle(V(-491.748984, -9.525, 0), V(0, 0, 1), 2.2225), False)
sketch16.addGeometry(Part.Circle(V(60.701016, -9.525, 0), V(0, 0, 1), 2.2225), False)
sketch16.addGeometry(Part.Circle(V(-491.748984, 471.805, 0), V(0, 0, 1), 2.2225), False)
sketch16.addGeometry(Part.Circle(V(60.701016, 471.805, 0), V(0, 0, 1), 2.2225), False)
sketch16.addConstraint(Sketcher.Constraint("Equal", 0, 1))
sketch16.addConstraint(Sketcher.Constraint("Equal", 1, 2))
sketch16.addConstraint(Sketcher.Constraint("Equal", 2, 3))
sketch16.addConstraint(Sketcher.Constraint("Horizontal", 0, 3, 1, 3))
sketch16.addConstraint(Sketcher.Constraint("Horizontal", 2, 3, 3, 3))
sketch16.addConstraint(Sketcher.Constraint("Vertical", 0, 3, 2, 3))
sketch16.addConstraint(Sketcher.Constraint("Vertical", 1, 3, 3, 3))
sketch16.addConstraint(Sketcher.Constraint("Diameter", 0, Q("0.175 in")))
sketch16.addConstraint(Sketcher.Constraint("DistanceX", 0, 3, 1, 3, Q("21.75 in")))
sketch16.addConstraint(Sketcher.Constraint("DistanceY", 0, 3, 2, 3, Q("18.95 in")))
sketch16.addConstraint(Sketcher.Constraint("DistanceY", 0, 3, -1, 1, Q("0.375 in")))
sketch16.addConstraint(Sketcher.Constraint("DistanceX", 0, 3, -1, 1, Q("491.748984 mm")))
doc.recompute()
hole7 = body9.newObject("PartDesign::Hole", "Hole006")
hole7.Profile = sketch16
hole7.ThreadType = "None"
hole7.Diameter = Q("0.175 in")
hole7.DepthType = "ThroughAll"
hole7.HoleCutType = "Countersink"
hole7.HoleCutDiameter = Q("0.32 in")
hole7.HoleCutCountersinkAngle = 82
hole7.Reversed = True

# Sketch on XZ plane
sketch17 = body9.newObject("Sketcher::SketchObject", "Sketch016")
sketch17.AttachmentSupport = (doc.getObject("XZ_Plane008"), [""])
sketch17.MapMode = "FlatFace"
sketch17.AttachmentOffset = App.Placement(V(0, 0, -18.95 * 25.4), App.Rotation())
sketch17.addGeometry(Part.Circle(V(-510.798984, -378.543527, 0), V(0, 0, 1), 2.2225), False)
sketch17.addGeometry(Part.Circle(V(-510.798984, -359.493527, 0), V(0, 0, 1), 2.2225), False)
sketch17.addGeometry(Part.Circle(V(79.751016, -378.543527, 0), V(0, 0, 1), 2.2225), False)
sketch17.addGeometry(Part.Circle(V(79.751016, -359.493527, 0), V(0, 0, 1), 2.2225), False)
sketch17.addGeometry(Part.Circle(V(79.751016, -5.163527, 0), V(0, 0, 1), 2.2225), False)
sketch17.addGeometry(Part.Circle(V(79.751016, 13.886473, 0), V(0, 0, 1), 2.2225), False)
sketch17.addGeometry(Part.Circle(V(-510.798984, -5.163527, 0), V(0, 0, 1), 2.2225), False)
sketch17.addGeometry(Part.Circle(V(-510.798984, 13.886473, 0), V(0, 0, 1), 2.2225), False)
sketch17.addConstraint(Sketcher.Constraint("Equal", 0, 1))
sketch17.addConstraint(Sketcher.Constraint("Equal", 1, 2))
sketch17.addConstraint(Sketcher.Constraint("Equal", 2, 3))
sketch17.addConstraint(Sketcher.Constraint("Equal", 3, 4))
sketch17.addConstraint(Sketcher.Constraint("Equal", 4, 5))
sketch17.addConstraint(Sketcher.Constraint("Equal", 5, 6))
sketch17.addConstraint(Sketcher.Constraint("Equal", 6, 7))
sketch17.addConstraint(Sketcher.Constraint("Horizontal", 0, 3, 2, 3))
sketch17.addConstraint(Sketcher.Constraint("Horizontal", 1, 3, 3, 3))
sketch17.addConstraint(Sketcher.Constraint("Horizontal", 4, 3, 6, 3))
sketch17.addConstraint(Sketcher.Constraint("Horizontal", 5, 3, 7, 3))
sketch17.addConstraint(Sketcher.Constraint("Vertical", 0, 3, 1, 3))
sketch17.addConstraint(Sketcher.Constraint("Vertical", 2, 3, 3, 3))
sketch17.addConstraint(Sketcher.Constraint("Vertical", 3, 3, 4, 3))
sketch17.addConstraint(Sketcher.Constraint("Vertical", 4, 3, 5, 3))
sketch17.addConstraint(Sketcher.Constraint("Vertical", 1, 3, 6, 3))
sketch17.addConstraint(Sketcher.Constraint("Vertical", 6, 3, 7, 3))
sketch17.addConstraint(Sketcher.Constraint("Diameter", 0, Q("0.175 in")))
sketch17.addConstraint(Sketcher.Constraint("DistanceY", 2, 3, 4, 3, Q("14.7 in")))
sketch17.addConstraint(Sketcher.Constraint("DistanceY", 3, 3, 5, 3, Q("14.7 in")))
sketch17.addConstraint(Sketcher.Constraint("DistanceY", 0, 3, 1, 3, Q("0.75 in")))
sketch17.addConstraint(Sketcher.Constraint("DistanceX", 0, 3, 2, 3, Q("23.25 in")))
sketch17.addConstraint(Sketcher.Constraint("DistanceX", 0, 3, -1, 1, Q("510.798984 mm")))
sketch17.addConstraint(Sketcher.Constraint("DistanceY", 0, 3, -1, 1, Q("378.543527 mm")))
doc.recompute()
hole8 = body9.newObject("PartDesign::Hole", "Hole007")
hole8.Profile = sketch17
hole8.ThreadType = "None"
hole8.Diameter = Q("0.175 in")
hole8.DepthType = "ThroughAll"
hole8.HoleCutType = "Countersink"
hole8.HoleCutDiameter = Q("0.32 in")
hole8.HoleCutCountersinkAngle = 82
hole8.Reversed = True
body10 = doc.addObject("PartDesign::Body", "Body009")

# Sketch on XZ plane
sketch18 = body10.newObject("Sketcher::SketchObject", "Sketch017")
sketch18.AttachmentSupport = (doc.getObject("XZ_Plane009"), [""])
sketch18.MapMode = "FlatFace"
sketch18.AttachmentOffset = App.Placement(V(0, 0, -18.2 * 25.4), App.Rotation())
sketch18.addGeometry(Part.LineSegment(V(89.276016, -17.228527, 0), V(89.276016, -347.428527, 0)), False)
sketch18.addGeometry(Part.LineSegment(V(89.276016, -347.428527, 0), V(51.176016, -347.428527, 0)), False)
sketch18.addGeometry(Part.LineSegment(V(51.176016, -347.428527, 0), V(51.176016, -17.228527, 0)), False)
sketch18.addGeometry(Part.LineSegment(V(51.176016, -17.228527, 0), V(89.276016, -17.228527, 0)), False)
sketch18.addConstraint(Sketcher.Constraint("Coincident", 0, 2, 1, 1))
sketch18.addConstraint(Sketcher.Constraint("Coincident", 1, 2, 2, 1))
sketch18.addConstraint(Sketcher.Constraint("Coincident", 2, 2, 3, 1))
sketch18.addConstraint(Sketcher.Constraint("Coincident", 3, 2, 0, 1))
sketch18.addConstraint(Sketcher.Constraint("Vertical", 0))
sketch18.addConstraint(Sketcher.Constraint("Horizontal", 1))
sketch18.addConstraint(Sketcher.Constraint("Vertical", 2))
sketch18.addConstraint(Sketcher.Constraint("Horizontal", 3))
sketch18.addConstraint(Sketcher.Constraint("DistanceY", 0, 2, 0, 1, Q("13 in")))
sketch18.addConstraint(Sketcher.Constraint("DistanceX", 1, 2, 1, 1, Q("1.5 in")))
sketch18.addConstraint(Sketcher.Constraint("DistanceX", -1, 1, 0, 2, Q("89.276016 mm")))
sketch18.addConstraint(Sketcher.Constraint("DistanceY", 0, 2, -1, 1, Q("347.428527 mm")))
pad10 = body10.newObject("PartDesign::Pad", "Pad009")
pad10.Profile = sketch18
pad10.Length = Q("0.75 in")
pad10.Reversed = True
body11 = doc.addObject("PartDesign::Body", "Body010")

# Sketch on YZ plane
sketch19 = body11.newObject("Sketcher::SketchObject", "Sketch018")
sketch19.AttachmentSupport = (doc.getObject("YZ_Plane010"), [""])
sketch19.MapMode = "FlatFace"
sketch19.AttachmentOffset = App.Placement(V(0, 0, -520.323984), App.Rotation())
sketch19.addGeometry(Part.LineSegment(V(459.74, 23.411473, 0), V(459.74, -14.688527, 0)), False)
sketch19.addGeometry(Part.LineSegment(V(459.74, -14.688527, 0), V(2.54, -14.688527, 0)), False)
sketch19.addGeometry(Part.LineSegment(V(2.54, -14.688527, 0), V(2.54, 23.411473, 0)), False)
sketch19.addGeometry(Part.LineSegment(V(2.54, 23.411473, 0), V(459.74, 23.411473, 0)), False)
sketch19.addConstraint(Sketcher.Constraint("Coincident", 0, 2, 1, 1))
sketch19.addConstraint(Sketcher.Constraint("Coincident", 1, 2, 2, 1))
sketch19.addConstraint(Sketcher.Constraint("Coincident", 2, 2, 3, 1))
sketch19.addConstraint(Sketcher.Constraint("Coincident", 3, 2, 0, 1))
sketch19.addConstraint(Sketcher.Constraint("Vertical", 0))
sketch19.addConstraint(Sketcher.Constraint("Horizontal", 1))
sketch19.addConstraint(Sketcher.Constraint("Vertical", 2))
sketch19.addConstraint(Sketcher.Constraint("Horizontal", 3))
sketch19.addConstraint(Sketcher.Constraint("DistanceX", 1, 2, 1, 1, Q("18 in")))
sketch19.addConstraint(Sketcher.Constraint("DistanceY", 0, 2, 0, 1, Q("1.5 in")))
sketch19.addConstraint(Sketcher.Constraint("DistanceX", -1, 1, 0, 2, Q("18.1 in")))
sketch19.addConstraint(Sketcher.Constraint("DistanceY", 0, 2, -1, 1, Q("14.688527 mm")))
pad11 = body11.newObject("PartDesign::Pad", "Pad010")
pad11.Profile = sketch19
pad11.Length = Q("0.75 in")
body12 = doc.addObject("PartDesign::Body", "Body011")

# Sketch on YZ plane
sketch20 = body12.newObject("Sketcher::SketchObject", "Sketch019")
sketch20.AttachmentSupport = (doc.getObject("YZ_Plane011"), [""])
sketch20.MapMode = "FlatFace"
sketch20.AttachmentOffset = App.Placement(V(0, 0, -520.323984), App.Rotation())
sketch20.addGeometry(Part.LineSegment(V(459.74, -349.968527, 0), V(459.74, -388.068527, 0)), False)
sketch20.addGeometry(Part.LineSegment(V(459.74, -388.068527, 0), V(2.54, -388.068527, 0)), False)
sketch20.addGeometry(Part.LineSegment(V(2.54, -388.068527, 0), V(2.54, -349.968527, 0)), False)
sketch20.addGeometry(Part.LineSegment(V(2.54, -349.968527, 0), V(459.74, -349.968527, 0)), False)
sketch20.addConstraint(Sketcher.Constraint("Coincident", 0, 2, 1, 1))
sketch20.addConstraint(Sketcher.Constraint("Coincident", 1, 2, 2, 1))
sketch20.addConstraint(Sketcher.Constraint("Coincident", 2, 2, 3, 1))
sketch20.addConstraint(Sketcher.Constraint("Coincident", 3, 2, 0, 1))
sketch20.addConstraint(Sketcher.Constraint("Vertical", 0))
sketch20.addConstraint(Sketcher.Constraint("Horizontal", 1))
sketch20.addConstraint(Sketcher.Constraint("Vertical", 2))
sketch20.addConstraint(Sketcher.Constraint("Horizontal", 3))
sketch20.addConstraint(Sketcher.Constraint("DistanceX", 1, 2, 1, 1, Q("18 in")))
sketch20.addConstraint(Sketcher.Constraint("DistanceY", 0, 2, 0, 1, Q("1.5 in")))
sketch20.addConstraint(Sketcher.Constraint("DistanceX", -1, 1, 0, 2, Q("18.1 in")))
sketch20.addConstraint(Sketcher.Constraint("DistanceY", 0, 2, -1, 1, Q("388.068527 mm")))
pad12 = body12.newObject("PartDesign::Pad", "Pad011")
pad12.Profile = sketch20
pad12.Length = Q("0.75 in")

doc.recompute()
